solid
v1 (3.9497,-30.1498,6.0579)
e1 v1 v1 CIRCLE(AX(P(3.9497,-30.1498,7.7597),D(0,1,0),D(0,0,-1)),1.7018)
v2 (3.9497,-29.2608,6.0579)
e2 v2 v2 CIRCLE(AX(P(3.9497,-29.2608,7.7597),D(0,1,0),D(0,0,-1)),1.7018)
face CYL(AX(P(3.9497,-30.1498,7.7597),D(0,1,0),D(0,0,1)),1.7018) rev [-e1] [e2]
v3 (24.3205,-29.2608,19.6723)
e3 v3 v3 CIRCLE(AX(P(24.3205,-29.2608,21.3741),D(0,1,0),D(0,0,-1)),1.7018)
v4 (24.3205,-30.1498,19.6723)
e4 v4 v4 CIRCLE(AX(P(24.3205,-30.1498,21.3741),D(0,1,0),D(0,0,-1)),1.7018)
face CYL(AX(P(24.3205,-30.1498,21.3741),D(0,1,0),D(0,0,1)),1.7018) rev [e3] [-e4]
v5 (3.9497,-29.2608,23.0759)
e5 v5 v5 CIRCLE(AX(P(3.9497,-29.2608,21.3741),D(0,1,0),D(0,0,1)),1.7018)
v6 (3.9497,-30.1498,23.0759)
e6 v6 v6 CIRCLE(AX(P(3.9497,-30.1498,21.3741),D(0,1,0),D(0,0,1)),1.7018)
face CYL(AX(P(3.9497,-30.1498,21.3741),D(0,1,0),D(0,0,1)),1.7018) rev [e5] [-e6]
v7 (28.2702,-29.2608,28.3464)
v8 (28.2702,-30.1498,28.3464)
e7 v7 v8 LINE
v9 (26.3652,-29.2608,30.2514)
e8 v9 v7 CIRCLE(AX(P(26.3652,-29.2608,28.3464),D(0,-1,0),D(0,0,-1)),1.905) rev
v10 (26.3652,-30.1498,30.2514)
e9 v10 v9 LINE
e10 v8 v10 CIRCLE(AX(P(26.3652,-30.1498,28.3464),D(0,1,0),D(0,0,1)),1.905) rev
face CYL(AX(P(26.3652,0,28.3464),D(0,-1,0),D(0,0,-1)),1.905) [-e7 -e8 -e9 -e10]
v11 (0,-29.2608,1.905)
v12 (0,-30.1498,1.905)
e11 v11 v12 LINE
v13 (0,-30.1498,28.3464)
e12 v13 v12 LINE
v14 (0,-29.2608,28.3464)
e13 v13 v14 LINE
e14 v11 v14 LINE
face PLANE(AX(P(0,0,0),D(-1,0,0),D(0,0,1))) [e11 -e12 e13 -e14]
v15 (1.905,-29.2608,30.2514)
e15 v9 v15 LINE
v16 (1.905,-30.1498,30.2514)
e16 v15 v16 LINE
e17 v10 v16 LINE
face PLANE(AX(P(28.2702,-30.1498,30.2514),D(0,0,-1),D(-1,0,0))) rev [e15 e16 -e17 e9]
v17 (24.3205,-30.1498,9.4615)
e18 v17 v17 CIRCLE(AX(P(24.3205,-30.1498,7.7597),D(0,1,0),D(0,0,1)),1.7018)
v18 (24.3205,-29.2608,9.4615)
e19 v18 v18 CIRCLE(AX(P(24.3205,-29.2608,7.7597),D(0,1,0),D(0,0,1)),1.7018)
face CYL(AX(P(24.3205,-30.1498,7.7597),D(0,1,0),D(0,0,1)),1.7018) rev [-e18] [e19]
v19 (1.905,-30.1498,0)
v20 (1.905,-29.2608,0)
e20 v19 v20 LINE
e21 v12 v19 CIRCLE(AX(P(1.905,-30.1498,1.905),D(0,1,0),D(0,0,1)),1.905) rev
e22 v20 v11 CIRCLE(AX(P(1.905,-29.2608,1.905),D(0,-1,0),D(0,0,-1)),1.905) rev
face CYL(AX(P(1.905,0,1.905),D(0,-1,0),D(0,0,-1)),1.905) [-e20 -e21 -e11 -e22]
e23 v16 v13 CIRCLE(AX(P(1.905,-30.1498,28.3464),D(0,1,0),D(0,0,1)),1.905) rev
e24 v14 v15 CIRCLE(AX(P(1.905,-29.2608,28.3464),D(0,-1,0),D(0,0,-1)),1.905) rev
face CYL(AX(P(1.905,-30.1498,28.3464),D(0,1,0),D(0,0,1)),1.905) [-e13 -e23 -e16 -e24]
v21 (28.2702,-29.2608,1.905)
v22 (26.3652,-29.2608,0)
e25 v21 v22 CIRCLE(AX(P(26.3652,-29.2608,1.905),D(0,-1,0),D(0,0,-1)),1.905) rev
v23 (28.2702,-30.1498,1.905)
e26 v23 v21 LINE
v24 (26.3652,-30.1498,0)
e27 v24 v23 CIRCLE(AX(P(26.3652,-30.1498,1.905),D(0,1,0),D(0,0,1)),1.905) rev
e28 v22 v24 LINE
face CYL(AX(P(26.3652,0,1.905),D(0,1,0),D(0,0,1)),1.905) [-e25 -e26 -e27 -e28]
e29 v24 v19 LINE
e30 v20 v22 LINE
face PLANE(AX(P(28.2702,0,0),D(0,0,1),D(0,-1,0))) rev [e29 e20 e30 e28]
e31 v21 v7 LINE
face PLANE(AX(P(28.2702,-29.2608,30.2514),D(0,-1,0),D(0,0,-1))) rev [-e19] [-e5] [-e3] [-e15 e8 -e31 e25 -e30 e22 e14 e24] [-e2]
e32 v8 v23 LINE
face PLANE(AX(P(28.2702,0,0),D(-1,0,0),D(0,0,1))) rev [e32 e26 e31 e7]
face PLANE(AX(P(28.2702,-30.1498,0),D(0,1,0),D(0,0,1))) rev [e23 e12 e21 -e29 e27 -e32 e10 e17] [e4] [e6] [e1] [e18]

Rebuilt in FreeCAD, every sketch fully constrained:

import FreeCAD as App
import Part
import Sketcher
Q = App.Units.Quantity


def edges_at(feature, points):
    """Names of the edges that pass closest to the given points."""
    edges = feature.Shape.Edges
    near = lambda p: min(range(len(edges)), key=lambda i: edges[i].distToShape(Part.Vertex(*p))[0])
    return sorted({f"Edge{near(p) + 1}" for p in points})


def add_polygon(sketch, points):
    """Adds a closed chain of lines whose ends are joined by coincident constraints."""
    first, n = sketch.GeometryCount, len(points)
    for a, b in zip(points, points[1:] + points[:1]):
        sketch.addGeometry(Part.LineSegment(App.Vector(*a, 0), App.Vector(*b, 0)), False)
    for i in range(n):
        sketch.addConstraint(Sketcher.Constraint("Coincident", first + i, 2, first + (i + 1) % n, 1))

doc = App.newDocument("Part")
body = doc.addObject("PartDesign::Body", "Body")

sketch1 = body.newObject("Sketcher::SketchObject", "Sketch")
sketch1.AttachmentSupport = (doc.getObject("YZ_Plane"), [""])
sketch1.MapMode = "FlatFace"
add_polygon(sketch1, [(-30.1, 0), (0, 0), (0, 3.1), (-29.3, 3.1), (-29.3, 30.3), (-30.1, 30.3)])
sketch1.addConstraint([
    Sketcher.Constraint("Horizontal", 0),
    Sketcher.Constraint("Vertical", 1),
    Sketcher.Constraint("Horizontal", 2),
    Sketcher.Constraint("Vertical", 3),
    Sketcher.Constraint("Horizontal", 4),
    Sketcher.Constraint("Vertical", 5),
    Sketcher.Constraint("Coincident", 0, 2, -1, 1),
    Sketcher.Constraint("DistanceX", 0, 1, 0, 2, Q("1.187 in")),
    Sketcher.Constraint("DistanceX", 2, 2, 2, 1, Q("1.152 in")),
    Sketcher.Constraint("DistanceY", 1, 1, 1, 2, Q("0.123 in")),
    Sketcher.Constraint("DistanceY", 3, 1, 3, 2, Q("1.068 in")),
])
pad1 = body.newObject("PartDesign::Pad", "Pad")
pad1.Profile = sketch1
pad1.Length = Q("1.113 in")

sketch2 = body.newObject("Sketcher::SketchObject", "Sketch001")
sketch2.AttachmentSupport = (doc.getObject("XY_Plane"), [""])
sketch2.MapMode = "FlatFace"
sketch2.AttachmentOffset = App.Placement(App.Vector(0, 0, 0.123 * 25.4), App.Rotation())
sketch2.addGeometry([
    Part.Circle(App.Vector(14.1, -11.7, 0), App.Vector(0, 0, 1), 3.6),
    Part.Circle(App.Vector(14.1, -3.1, 0), App.Vector(0, 0, 1), 1.5),
    Part.Circle(App.Vector(5.2, -11.7, 0), App.Vector(0, 0, 1), 2),
    Part.Circle(App.Vector(23, -11.7, 0), App.Vector(0, 0, 1), 2),
    Part.Circle(App.Vector(14.1, -20.2, 0), App.Vector(0, 0, 1), 1.5),
], False)
sketch2.addConstraint([
    Sketcher.Constraint("Equal", 2, 3),
    Sketcher.Constraint("Equal", 1, 4),
    Sketcher.Constraint("Horizontal", 0, 3, 2, 3),
    Sketcher.Constraint("Horizontal", 2, 3, 3, 3),
    Sketcher.Constraint("Vertical", 0, 3, 1, 3),
    Sketcher.Constraint("Vertical", 1, 3, 4, 3),
    Sketcher.Constraint("Diameter", 0, Q("0.28 in")),
    Sketcher.Constraint("Diameter", 1, Q("0.118 in")),
    Sketcher.Constraint("Diameter", 2, Q("0.158 in")),
    Sketcher.Constraint("DistanceX", 2, 3, 3, 3, Q("0.7 in")),
    Sketcher.Constraint("DistanceX", 2, 3, 0, 3, Q("0.35 in")),
    Sketcher.Constraint("DistanceY", 4, 3, 1, 3, Q("0.67 in")),
    Sketcher.Constraint("DistanceY", 0, 3, -1, 1, Q("0.459 in")),
    Sketcher.Constraint("DistanceY", 1, 3, -1, 1, Q("0.124 in")),
    Sketcher.Constraint("DistanceX", -1, 1, 0, 3, Q("0.5565 in")),
])
pocket1 = body.newObject("PartDesign::Pocket", "Pocket")
pocket1.Profile = sketch2
pocket1.Type = "ThroughAll"

sketch3 = body.newObject("Sketcher::SketchObject", "Sketch002")
sketch3.AttachmentSupport = (doc.getObject("XZ_Plane"), [""])
sketch3.MapMode = "FlatFace"
sketch3.AttachmentOffset = App.Placement(App.Vector(0, 0, 1.152 * 25.4), App.Rotation())
sketch3.addGeometry([
    Part.Circle(App.Vector(24.3, 7.8, 0), App.Vector(0, 0, 1), 1.7),
    Part.Circle(App.Vector(3.9, 7.8, 0), App.Vector(0, 0, 1), 1.7),
    Part.Circle(App.Vector(3.9, 21.4, 0), App.Vector(0, 0, 1), 1.7),
    Part.Circle(App.Vector(24.3, 21.4, 0), App.Vector(0, 0, 1), 1.7),
], False)
sketch3.addConstraint([
    Sketcher.Constraint("Equal", 0, 1),
    Sketcher.Constraint("Equal", 1, 2),
    Sketcher.Constraint("Equal", 2, 3),
    Sketcher.Constraint("Horizontal", 0, 3, 1, 3),
    Sketcher.Constraint("Horizontal", 2, 3, 3, 3),
    Sketcher.Constraint("Vertical", 1, 3, 2, 3),
    Sketcher.Constraint("Vertical", 0, 3, 3, 3),
    Sketcher.Constraint("Diameter", 0, Q("0.134 in")),
    Sketcher.Constraint("DistanceX", 1, 3, 0, 3, Q("0.802 in")),
    Sketcher.Constraint("DistanceY", 1, 3, 2, 3, Q("0.536 in")),
    Sketcher.Constraint("DistanceX", -1, 1, 0, 3, Q("0.9575 in")),
    Sketcher.Constraint("DistanceY", -1, 1, 0, 3, Q("0.3055 in")),
])
pocket2 = body.newObject("PartDesign::Pocket", "Pocket001")
pocket2.Profile = sketch3
pocket2.Type = "ThroughAll"
pocket2.Reversed = True

sketch4 = body.newObject("Sketcher::SketchObject", "Sketch003")
sketch4.AttachmentSupport = (doc.getObject("XY_Plane"), [""])
sketch4.MapMode = "FlatFace"
sketch4.AttachmentOffset = App.Placement(App.Vector(0, 0, 0.123 * 25.4), App.Rotation())
add_polygon(sketch4, [(0, 0), (0, -29), (28, -29), (28, 0)])
sketch4.addConstraint([
    Sketcher.Constraint("Vertical", 0),
    Sketcher.Constraint("Horizontal", 1),
    Sketcher.Constraint("Vertical", 2),
    Sketcher.Constraint("Horizontal", 3),
    Sketcher.Constraint("Coincident", 3, 2, -1, 1),
    Sketcher.Constraint("DistanceX", 1, 1, 1, 2, Q("1.113 in")),
    Sketcher.Constraint("DistanceY", 0, 2, 0, 1, Q("1.152 in")),
])
pocket3 = body.newObject("PartDesign::Pocket", "Pocket002")
pocket3.Profile = sketch4
pocket3.Type = "ThroughAll"
doc.recompute()

fillet = body.newObject("PartDesign::Fillet", "Fillet")
fillet.Base = (pocket3, edges_at(pocket3, [
    (28.27, -29.705, 30.251),
    (28.27, -29.705, 0),
    (0, -29.705, 0),
    (0, -29.705, 30.251),
]))
fillet.Radius = Q("0.075 in")

doc.recompute()
